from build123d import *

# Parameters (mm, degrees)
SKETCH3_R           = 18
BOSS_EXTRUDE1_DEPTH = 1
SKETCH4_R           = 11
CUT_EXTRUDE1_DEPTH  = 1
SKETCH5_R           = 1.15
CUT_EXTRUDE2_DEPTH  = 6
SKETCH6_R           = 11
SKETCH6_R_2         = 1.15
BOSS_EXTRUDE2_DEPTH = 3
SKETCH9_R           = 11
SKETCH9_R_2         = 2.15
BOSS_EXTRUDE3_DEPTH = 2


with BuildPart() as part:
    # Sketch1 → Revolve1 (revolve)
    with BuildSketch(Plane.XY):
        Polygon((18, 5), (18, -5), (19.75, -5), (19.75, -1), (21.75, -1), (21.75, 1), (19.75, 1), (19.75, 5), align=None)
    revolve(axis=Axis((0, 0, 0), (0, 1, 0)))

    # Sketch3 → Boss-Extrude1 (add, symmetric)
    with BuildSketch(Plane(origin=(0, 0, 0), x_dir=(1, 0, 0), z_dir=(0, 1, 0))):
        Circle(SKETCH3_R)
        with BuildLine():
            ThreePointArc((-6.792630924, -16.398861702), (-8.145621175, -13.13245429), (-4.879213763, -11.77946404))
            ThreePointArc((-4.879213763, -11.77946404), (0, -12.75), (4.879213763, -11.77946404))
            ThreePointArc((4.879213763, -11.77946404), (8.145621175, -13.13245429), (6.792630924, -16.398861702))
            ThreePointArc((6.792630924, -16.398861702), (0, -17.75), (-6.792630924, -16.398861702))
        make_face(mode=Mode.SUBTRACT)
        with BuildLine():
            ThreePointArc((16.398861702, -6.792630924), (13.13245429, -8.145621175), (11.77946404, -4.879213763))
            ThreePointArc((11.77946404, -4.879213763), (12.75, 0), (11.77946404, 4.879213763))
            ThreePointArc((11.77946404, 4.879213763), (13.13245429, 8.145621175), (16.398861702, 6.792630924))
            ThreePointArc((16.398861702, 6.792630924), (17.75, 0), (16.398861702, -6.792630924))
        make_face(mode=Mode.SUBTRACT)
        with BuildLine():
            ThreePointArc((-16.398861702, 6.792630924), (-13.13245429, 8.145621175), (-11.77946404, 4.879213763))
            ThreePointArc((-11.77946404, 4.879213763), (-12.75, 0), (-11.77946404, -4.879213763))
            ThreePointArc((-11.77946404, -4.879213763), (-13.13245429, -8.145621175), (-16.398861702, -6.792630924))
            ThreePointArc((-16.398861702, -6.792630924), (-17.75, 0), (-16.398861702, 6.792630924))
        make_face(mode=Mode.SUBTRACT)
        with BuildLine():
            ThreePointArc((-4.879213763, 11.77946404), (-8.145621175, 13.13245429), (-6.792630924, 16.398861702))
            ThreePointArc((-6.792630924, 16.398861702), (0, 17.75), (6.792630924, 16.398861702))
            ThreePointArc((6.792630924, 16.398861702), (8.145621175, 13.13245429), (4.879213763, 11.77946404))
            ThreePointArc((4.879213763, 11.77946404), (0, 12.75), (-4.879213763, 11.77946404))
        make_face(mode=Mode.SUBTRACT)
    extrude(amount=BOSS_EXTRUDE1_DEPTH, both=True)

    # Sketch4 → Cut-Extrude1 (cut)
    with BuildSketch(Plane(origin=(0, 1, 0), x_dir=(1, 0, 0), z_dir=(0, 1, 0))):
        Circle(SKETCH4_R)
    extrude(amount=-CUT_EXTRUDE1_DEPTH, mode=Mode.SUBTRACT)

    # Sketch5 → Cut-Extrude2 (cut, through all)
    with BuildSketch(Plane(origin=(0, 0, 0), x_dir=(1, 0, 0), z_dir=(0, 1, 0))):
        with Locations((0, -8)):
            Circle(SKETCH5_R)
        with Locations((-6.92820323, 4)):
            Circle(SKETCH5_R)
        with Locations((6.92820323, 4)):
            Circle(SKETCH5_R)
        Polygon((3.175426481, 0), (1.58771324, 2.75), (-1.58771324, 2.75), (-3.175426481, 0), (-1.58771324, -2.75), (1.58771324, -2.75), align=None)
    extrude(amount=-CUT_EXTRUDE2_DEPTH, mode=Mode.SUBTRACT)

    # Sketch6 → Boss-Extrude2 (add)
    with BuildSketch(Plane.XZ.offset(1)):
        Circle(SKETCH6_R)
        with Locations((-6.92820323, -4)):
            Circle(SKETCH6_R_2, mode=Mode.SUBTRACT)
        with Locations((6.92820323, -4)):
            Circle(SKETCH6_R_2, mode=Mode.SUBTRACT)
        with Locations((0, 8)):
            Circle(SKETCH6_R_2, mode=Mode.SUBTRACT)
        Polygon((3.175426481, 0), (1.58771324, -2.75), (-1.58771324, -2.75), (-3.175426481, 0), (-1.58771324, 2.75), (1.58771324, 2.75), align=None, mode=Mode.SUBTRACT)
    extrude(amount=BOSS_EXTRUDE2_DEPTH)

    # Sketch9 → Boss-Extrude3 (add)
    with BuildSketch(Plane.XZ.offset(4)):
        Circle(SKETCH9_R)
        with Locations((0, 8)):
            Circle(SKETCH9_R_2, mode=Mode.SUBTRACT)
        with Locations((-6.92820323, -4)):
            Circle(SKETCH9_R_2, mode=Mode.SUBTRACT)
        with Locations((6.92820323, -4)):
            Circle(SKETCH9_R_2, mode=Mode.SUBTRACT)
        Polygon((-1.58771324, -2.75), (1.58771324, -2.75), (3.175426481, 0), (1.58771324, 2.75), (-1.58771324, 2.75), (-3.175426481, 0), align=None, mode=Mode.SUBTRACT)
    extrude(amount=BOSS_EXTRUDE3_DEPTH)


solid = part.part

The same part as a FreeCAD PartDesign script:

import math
import FreeCAD as App
import Part
import Sketcher
Q = App.Units.Quantity

doc = App.newDocument("Part")
params = doc.addObject("Spreadsheet::Sheet", "Params")
for row, (alias, value) in enumerate([
    ("sketch1_width", "2 mm"),
    ("sketch1_height", "10 mm"),
    ("sketch1_width2", "1.75 mm"),
    ("revolution_angle", "360 deg"),
    ("sketch2_diameter", "36 mm"),
    ("sketch2_radius", "2.5 mm"),
    ("sketch2_radius2", "17.75 mm"),
    ("pad1_length", "2 mm"),
    ("sketch3_diameter", "22 mm"),
    ("pocket1_length", "1 mm"),
    ("sketch4_diameter", "2.3 mm"),
    ("sketch5_diameter", "22 mm"),
    ("sketch5_diameter2", "2.3 mm"),
    ("pad2_length", "3 mm"),
    ("sketch6_diameter", "22 mm"),
    ("sketch6_diameter2", "4.3 mm"),
    ("pad3_length", "2 mm"),
], start=1):
    params.set(f"A{row}", alias)
    params.set(f"B{row}", "=" + value)
    params.setAlias(f"B{row}", alias)

body = doc.addObject("PartDesign::Body", "Body")

sketch1 = doc.addObject("Sketcher::SketchObject", "Sketch")
body.addObject(sketch1)
sketch1.AttachmentSupport = (doc.XY_Plane, [""])
sketch1.MapMode = "FlatFace"
sketch1.addGeometry([
    Part.LineSegment(App.Vector(18, 5, 0), App.Vector(18, -5, 0)),
    Part.LineSegment(App.Vector(18, -5, 0), App.Vector(19.8, -5, 0)),
    Part.LineSegment(App.Vector(19.8, -5, 0), App.Vector(19.8, -1, 0)),
    Part.LineSegment(App.Vector(19.8, -1, 0), App.Vector(21.8, -1, 0)),
    Part.LineSegment(App.Vector(21.8, -1, 0), App.Vector(21.8, 1, 0)),
    Part.LineSegment(App.Vector(21.8, 1, 0), App.Vector(19.8, 1, 0)),
    Part.LineSegment(App.Vector(19.8, 1, 0), App.Vector(19.8, 5, 0)),
    Part.LineSegment(App.Vector(19.8, 5, 0), App.Vector(18, 5, 0)),
], False)
sketch1.addConstraint([
    Sketcher.Constraint("Coincident", 0, 2, 1, 1),
    Sketcher.Constraint("Coincident", 1, 2, 2, 1),
    Sketcher.Constraint("Coincident", 2, 2, 3, 1),
    Sketcher.Constraint("Coincident", 3, 2, 4, 1),
    Sketcher.Constraint("Coincident", 4, 2, 5, 1),
    Sketcher.Constraint("Coincident", 5, 2, 6, 1),
    Sketcher.Constraint("Coincident", 6, 2, 7, 1),
    Sketcher.Constraint("Coincident", 7, 2, 0, 1),
    Sketcher.Constraint("Vertical", 0),
    Sketcher.Constraint("Horizontal", 1),
    Sketcher.Constraint("Vertical", 2),
    Sketcher.Constraint("Horizontal", 3),
    Sketcher.Constraint("Vertical", 4),
    Sketcher.Constraint("Horizontal", 5),
    Sketcher.Constraint("Vertical", 6),
    Sketcher.Constraint("Horizontal", 7),
    Sketcher.Constraint("Symmetric", 2, 2, 5, 2, -1),
    Sketcher.Constraint("Equal", 5, 4),
    Sketcher.Constraint("Equal", 2, 6),
    Sketcher.Constraint("DistanceX", 3, 1, 3, 2, 2.0),
    Sketcher.Constraint("DistanceY", 0, 2, 0, 1, 10.0),
    Sketcher.Constraint("DistanceX", -1, 1, 0, 2, 18.0),
    Sketcher.Constraint("DistanceX", 1, 1, 1, 2, 1.75),
])
sketch1.setExpression("Constraints[19]", "Params.sketch1_width")
sketch1.setExpression("Constraints[20]", "Params.sketch1_height")
sketch1.setExpression("Constraints[22]", "Params.sketch1_width2")
revolution = doc.addObject("PartDesign::Revolution", "Revolution")
body.addObject(revolution)
revolution.Profile = sketch1
revolution.ReferenceAxis = (sketch1, ["V_Axis"])
revolution.setExpression("Angle", "Params.revolution_angle")

sketch2 = doc.addObject("Sketcher::SketchObject", "Sketch001")
body.addObject(sketch2)
sketch2.AttachmentSupport = (doc.XZ_Plane, [""])
sketch2.MapMode = "FlatFace"
sketch2.addGeometry([
    Part.Circle(App.Vector(0, 0, 0), App.Vector(0, 0, 1), 18),
    Part.ArcOfCircle(Part.Circle(App.Vector(0, 0, 0), App.Vector(0, 0, 1), 17.7), math.radians(67), math.radians(113)),
    Part.ArcOfCircle(Part.Circle(App.Vector(-5.8, 14.1, 0), App.Vector(0, 0, 1), 2.5), math.radians(112), math.radians(293)),
    Part.ArcOfCircle(Part.Circle(App.Vector(0, 0, 0), App.Vector(0, 0, 1), 12.8), math.radians(68), math.radians(112)),
    Part.ArcOfCircle(Part.Circle(App.Vector(5.8, 14.1, 0), App.Vector(0, 0, 1), 2.5), math.radians(-113), math.radians(68)),
    Part.ArcOfCircle(Part.Circle(App.Vector(0, 0, 0), App.Vector(0, 0, 1), 17.7), math.radians(157), math.radians(203)),
    Part.ArcOfCircle(Part.Circle(App.Vector(-14.1, -5.8, 0), App.Vector(0, 0, 1), 2.5), math.radians(-158), math.radians(23)),
    Part.ArcOfCircle(Part.Circle(App.Vector(0, 0, 0), App.Vector(0, 0, 1), 12.8), math.radians(158), math.radians(202)),
    Part.ArcOfCircle(Part.Circle(App.Vector(-14.1, 5.8, 0), App.Vector(0, 0, 1), 2.5), math.radians(-23), math.radians(158)),
    Part.ArcOfCircle(Part.Circle(App.Vector(0, 0, 0), App.Vector(0, 0, 1), 17.7), math.radians(-23), math.radians(23)),
    Part.ArcOfCircle(Part.Circle(App.Vector(14.1, 5.8, 0), App.Vector(0, 0, 1), 2.5), math.radians(22), math.radians(203)),
    Part.ArcOfCircle(Part.Circle(App.Vector(0, 0, 0), App.Vector(0, 0, 1), 12.8), math.radians(-22), math.radians(22)),
    Part.ArcOfCircle(Part.Circle(App.Vector(14.1, -5.8, 0), App.Vector(0, 0, 1), 2.5), math.radians(157), math.radians(338)),
    Part.ArcOfCircle(Part.Circle(App.Vector(0, 0, 0), App.Vector(0, 0, 1), 12.8), math.radians(-112), math.radians(-68)),
    Part.ArcOfCircle(Part.Circle(App.Vector(-5.8, -14.1, 0), App.Vector(0, 0, 1), 2.5), math.radians(67), math.radians(248)),
    Part.ArcOfCircle(Part.Circle(App.Vector(0, 0, 0), App.Vector(0, 0, 1), 17.7), math.radians(-113), math.radians(-67)),
    Part.ArcOfCircle(Part.Circle(App.Vector(5.8, -14.1, 0), App.Vector(0, 0, 1), 2.5), math.radians(-68), math.radians(113)),
], False)
sketch2.addConstraint([
    Sketcher.Constraint("Tangent", 1, 2, 2, 1),
    Sketcher.Constraint("Tangent", 2, 2, 3, 2),
    Sketcher.Constraint("Tangent", 3, 1, 4, 1),
    Sketcher.Constraint("Tangent", 4, 2, 1, 1),
    Sketcher.Constraint("Tangent", 5, 2, 6, 1),
    Sketcher.Constraint("Tangent", 6, 2, 7, 2),
    Sketcher.Constraint("Tangent", 7, 1, 8, 1),
    Sketcher.Constraint("Tangent", 8, 2, 5, 1),
    Sketcher.Constraint("Tangent", 9, 2, 10, 1),
    Sketcher.Constraint("Tangent", 10, 2, 11, 2),
    Sketcher.Constraint("Tangent", 11, 1, 12, 1),
    Sketcher.Constraint("Tangent", 12, 2, 9, 1),
    Sketcher.Constraint("Tangent", 13, 1, 14, 1),
    Sketcher.Constraint("Tangent", 14, 2, 15, 1),
    Sketcher.Constraint("Tangent", 15, 2, 16, 1),
    Sketcher.Constraint("Tangent", 16, 2, 13, 2),
    Sketcher.Constraint("Coincident", 0, 3, -1, 1),
    Sketcher.Constraint("Coincident", 1, 3, -1, 1),
    Sketcher.Constraint("Coincident", 3, 3, -1, 1),
    Sketcher.Constraint("Coincident", 5, 3, -1, 1),
    Sketcher.Constraint("Coincident", 7, 3, -1, 1),
    Sketcher.Constraint("Coincident", 9, 3, -1, 1),
    Sketcher.Constraint("Coincident", 11, 3, -1, 1),
    Sketcher.Constraint("Coincident", 13, 3, -1, 1),
    Sketcher.Constraint("Coincident", 15, 3, -1, 1),
    Sketcher.Constraint("Equal", 1, 5),
    Sketcher.Constraint("Equal", 4, 6),
    Sketcher.Constraint("Equal", 5, 9),
    Sketcher.Constraint("Equal", 8, 10),
    Sketcher.Constraint("Equal", 11, 13),
    Sketcher.Constraint("Equal", 12, 14),
    Sketcher.Constraint("Horizontal", 2, 3, 4, 3),
    Sketcher.Constraint("Horizontal", 8, 3, 10, 3),
    Sketcher.Constraint("Horizontal", 6, 3, 12, 3),
    Sketcher.Constraint("Horizontal", 14, 3, 16, 3),
    Sketcher.Constraint("Vertical", 6, 3, 8, 3),
    Sketcher.Constraint("Vertical", 2, 3, 14, 3),
    Sketcher.Constraint("Diameter", 0, 36.0),
    Sketcher.Constraint("Radius", 2, 2.5),
    Sketcher.Constraint("Radius", 1, 17.75),
    Sketcher.Constraint("DistanceY", 2, 3, 1, 2, 2.309699),
    Sketcher.Constraint("DistanceX", 5, 2, 6, 3, 2.309699),
])
sketch2.setExpression("Constraints[37]", "Params.sketch2_diameter")
sketch2.setExpression("Constraints[38]", "Params.sketch2_radius")
sketch2.setExpression("Constraints[39]", "Params.sketch2_radius2")
pad1 = doc.addObject("PartDesign::Pad", "Pad")
body.addObject(pad1)
pad1.Profile = sketch2
pad1.setExpression("Length", "Params.pad1_length")
pad1.Midplane = True

sketch3 = doc.addObject("Sketcher::SketchObject", "Sketch002")
body.addObject(sketch3)
sketch3.AttachmentSupport = (doc.XZ_Plane, [""])
sketch3.MapMode = "FlatFace"
sketch3.AttachmentOffset = App.Placement(App.Vector(0, 0, -1), App.Rotation())
sketch3.addGeometry(Part.Circle(App.Vector(0, 0, 0), App.Vector(0, 0, 1), 11), False)
sketch3.addConstraint([
    Sketcher.Constraint("Coincident", 0, 3, -1, 1),
    Sketcher.Constraint("Diameter", 0, 22.0),
])
sketch3.setExpression("Constraints[1]", "Params.sketch3_diameter")
pocket1 = doc.addObject("PartDesign::Pocket", "Pocket")
body.addObject(pocket1)
pocket1.Profile = sketch3
pocket1.setExpression("Length", "Params.pocket1_length")
pocket1.Reversed = True

sketch4 = doc.addObject("Sketcher::SketchObject", "Sketch003")
body.addObject(sketch4)
sketch4.AttachmentSupport = (doc.XZ_Plane, [""])
sketch4.MapMode = "FlatFace"
sketch4.addGeometry([
    Part.Circle(App.Vector(0, 8, 0), App.Vector(0, 0, 1), 1.1),
    Part.Circle(App.Vector(-6.9, -4, 0), App.Vector(0, 0, 1), 1.1),
    Part.Circle(App.Vector(6.9, -4, 0), App.Vector(0, 0, 1), 1.1),
    Part.LineSegment(App.Vector(3.2, 0, 0), App.Vector(1.6, -2.8, 0)),
    Part.LineSegment(App.Vector(1.6, -2.8, 0), App.Vector(-1.6, -2.8, 0)),
    Part.LineSegment(App.Vector(-1.6, -2.8, 0), App.Vector(-3.2, 0, 0)),
    Part.LineSegment(App.Vector(-3.2, 0, 0), App.Vector(-1.6, 2.8, 0)),
    Part.LineSegment(App.Vector(-1.6, 2.8, 0), App.Vector(1.6, 2.8, 0)),
    Part.LineSegment(App.Vector(1.6, 2.8, 0), App.Vector(3.2, 0, 0)),
], False)
sketch4.addConstraint([
    Sketcher.Constraint("Coincident", 3, 2, 4, 1),
    Sketcher.Constraint("Coincident", 4, 2, 5, 1),
    Sketcher.Constraint("Coincident", 5, 2, 6, 1),
    Sketcher.Constraint("Coincident", 6, 2, 7, 1),
    Sketcher.Constraint("Coincident", 7, 2, 8, 1),
    Sketcher.Constraint("Coincident", 8, 2, 3, 1),
    Sketcher.Constraint("Horizontal", 4),
    Sketcher.Constraint("Horizontal", 7),
    Sketcher.Constraint("Equal", 0, 1),
    Sketcher.Constraint("Equal", 1, 2),
    Sketcher.Constraint("Symmetric", 3, 2, 6, 2, -1, 1),
    Sketcher.Constraint("Symmetric", 5, 2, 8, 2, -1, 1),
    Sketcher.Constraint("Symmetric", 1, 3, 2, 3, -2),
    Sketcher.Constraint("PointOnObject", 0, 3, -2),
    Sketcher.Constraint("PointOnObject", 5, 2, -1),
    Sketcher.Constraint("Parallel", 5, 8),
    Sketcher.Constraint("Vertical", 4, 2, 6, 2),
    Sketcher.Constraint("Diameter", 0, 2.3),
    Sketcher.Constraint("Angle", 3, Q("-120 deg")),
    Sketcher.Constraint("DistanceY", -1, 1, 0, 3, 8.0),
    Sketcher.Constraint("DistanceY", 1, 3, -1, 1, 4.0),
    Sketcher.Constraint("DistanceY", 4, 2, 6, 2, 5.5),
    Sketcher.Constraint("DistanceX", 4, 2, 4, 1, 3.175426),
    Sketcher.Constraint("DistanceX", 3, 2, 2, 3, 5.34049),
])
sketch4.setExpression("Constraints[17]", "Params.sketch4_diameter")
pocket2 = doc.addObject("PartDesign::Pocket", "Pocket001")
body.addObject(pocket2)
pocket2.Profile = sketch4
pocket2.Type = "ThroughAll"
pocket2.Reversed = True

sketch5 = doc.addObject("Sketcher::SketchObject", "Sketch004")
body.addObject(sketch5)
sketch5.AttachmentSupport = (doc.XZ_Plane, [""])
sketch5.MapMode = "FlatFace"
sketch5.AttachmentOffset = App.Placement(App.Vector(0, 0, 1), App.Rotation())
sketch5.addGeometry([
    Part.Circle(App.Vector(0, 0, 0), App.Vector(0, 0, 1), 11),
    Part.Circle(App.Vector(-6.9, -4, 0), App.Vector(0, 0, 1), 1.1),
    Part.Circle(App.Vector(6.9, -4, 0), App.Vector(0, 0, 1), 1.1),
    Part.LineSegment(App.Vector(1.6, 2.8, 0), App.Vector(3.2, 0, 0)),
    Part.LineSegment(App.Vector(3.2, 0, 0), App.Vector(1.6, -2.8, 0)),
    Part.LineSegment(App.Vector(1.6, -2.8, 0), App.Vector(-1.6, -2.8, 0)),
    Part.LineSegment(App.Vector(-1.6, -2.8, 0), App.Vector(-3.2, 0, 0)),
    Part.LineSegment(App.Vector(-3.2, 0, 0), App.Vector(-1.6, 2.8, 0)),
    Part.LineSegment(App.Vector(-1.6, 2.8, 0), App.Vector(1.6, 2.8, 0)),
    Part.Circle(App.Vector(0, 8, 0), App.Vector(0, 0, 1), 1.1),
], False)
sketch5.addConstraint([
    Sketcher.Constraint("Coincident", 3, 2, 4, 1),
    Sketcher.Constraint("Coincident", 4, 2, 5, 1),
    Sketcher.Constraint("Coincident", 5, 2, 6, 1),
    Sketcher.Constraint("Coincident", 6, 2, 7, 1),
    Sketcher.Constraint("Coincident", 7, 2, 8, 1),
    Sketcher.Constraint("Coincident", 8, 2, 3, 1),
    Sketcher.Constraint("Horizontal", 5),
    Sketcher.Constraint("Horizontal", 8),
    Sketcher.Constraint("Coincident", 0, 3, -1, 1),
    Sketcher.Constraint("Equal", 1, 2),
    Sketcher.Constraint("Equal", 2, 9),
    Sketcher.Constraint("Symmetric", 3, 2, 6, 2, -1, 1),
    Sketcher.Constraint("Symmetric", 4, 2, 7, 2, -1, 1),
    Sketcher.Constraint("Symmetric", 1, 3, 2, 3, -2),
    Sketcher.Constraint("PointOnObject", 9, 3, -2),
    Sketcher.Constraint("PointOnObject", 3, 2, -1),
    Sketcher.Constraint("Parallel", 3, 6),
    Sketcher.Constraint("Vertical", 5, 2, 7, 2),
    Sketcher.Constraint("Diameter", 0, 22.0),
    Sketcher.Constraint("Diameter", 1, 2.3),
    Sketcher.Constraint("Angle", 3, Q("-60 deg")),
    Sketcher.Constraint("DistanceY", 1, 3, -1, 1, 4.0),
    Sketcher.Constraint("DistanceY", -1, 1, 9, 3, 8.0),
    Sketcher.Constraint("DistanceY", 5, 2, 7, 2, 5.5),
    Sketcher.Constraint("DistanceX", 5, 2, 5, 1, 3.175426),
    Sketcher.Constraint("DistanceX", 1, 3, 3, 2, 10.10363),
])
sketch5.setExpression("Constraints[18]", "Params.sketch5_diameter")
sketch5.setExpression("Constraints[19]", "Params.sketch5_diameter2")
pad2 = doc.addObject("PartDesign::Pad", "Pad001")
body.addObject(pad2)
pad2.Profile = sketch5
pad2.setExpression("Length", "Params.pad2_length")

sketch6 = doc.addObject("Sketcher::SketchObject", "Sketch005")
body.addObject(sketch6)
sketch6.AttachmentSupport = (doc.XZ_Plane, [""])
sketch6.MapMode = "FlatFace"
sketch6.AttachmentOffset = App.Placement(App.Vector(0, 0, 4), App.Rotation())
sketch6.addGeometry([
    Part.Circle(App.Vector(0, 0, 0), App.Vector(0, 0, 1), 11),
    Part.Circle(App.Vector(-6.9, -4, 0), App.Vector(0, 0, 1), 2.1),
    Part.Circle(App.Vector(6.9, -4, 0), App.Vector(0, 0, 1), 2.1),
    Part.LineSegment(App.Vector(1.6, -2.8, 0), App.Vector(-1.6, -2.8, 0)),
    Part.LineSegment(App.Vector(-1.6, -2.8, 0), App.Vector(-3.2, 0, 0)),
    Part.LineSegment(App.Vector(-3.2, 0, 0), App.Vector(-1.6, 2.8, 0)),
    Part.LineSegment(App.Vector(-1.6, 2.8, 0), App.Vector(1.6, 2.8, 0)),
    Part.LineSegment(App.Vector(1.6, 2.8, 0), App.Vector(3.2, 0, 0)),
    Part.LineSegment(App.Vector(3.2, 0, 0), App.Vector(1.6, -2.8, 0)),
    Part.Circle(App.Vector(0, 8, 0), App.Vector(0, 0, 1), 2.1),
], False)
sketch6.addConstraint([
    Sketcher.Constraint("Coincident", 3, 2, 4, 1),
    Sketcher.Constraint("Coincident", 4, 2, 5, 1),
    Sketcher.Constraint("Coincident", 5, 2, 6, 1),
    Sketcher.Constraint("Coincident", 6, 2, 7, 1),
    Sketcher.Constraint("Coincident", 7, 2, 8, 1),
    Sketcher.Constraint("Coincident", 8, 2, 3, 1),
    Sketcher.Constraint("Horizontal", 3),
    Sketcher.Constraint("Horizontal", 6),
    Sketcher.Constraint("Coincident", 0, 3, -1, 1),
    Sketcher.Constraint("Equal", 1, 2),
    Sketcher.Constraint("Equal", 2, 9),
    Sketcher.Constraint("Symmetric", 3, 2, 6, 2, -1, 1),
    Sketcher.Constraint("Symmetric", 4, 2, 7, 2, -1, 1),
    Sketcher.Constraint("Symmetric", 1, 3, 2, 3, -2),
    Sketcher.Constraint("PointOnObject", 9, 3, -2),
    Sketcher.Constraint("PointOnObject", 4, 2, -1),
    Sketcher.Constraint("Parallel", 5, 8),
    Sketcher.Constraint("Vertical", 3, 2, 5, 2),
    Sketcher.Constraint("Diameter", 0, 22.0),
    Sketcher.Constraint("Diameter", 1, 4.3),
    Sketcher.Constraint("Angle", 4, Q("120 deg")),
    Sketcher.Constraint("DistanceY", 1, 3, -1, 1, 4.0),
    Sketcher.Constraint("DistanceY", -1, 1, 9, 3, 8.0),
    Sketcher.Constraint("DistanceY", 3, 2, 5, 2, 5.5),
    Sketcher.Constraint("DistanceX", 3, 2, 3, 1, 3.175426),
    Sketcher.Constraint("DistanceX", 1, 3, 3, 2, 5.34049),
])
sketch6.setExpression("Constraints[18]", "Params.sketch6_diameter")
sketch6.setExpression("Constraints[19]", "Params.sketch6_diameter2")
pad3 = doc.addObject("PartDesign::Pad", "Pad002")
body.addObject(pad3)
pad3.Profile = sketch6
pad3.setExpression("Length", "Params.pad3_length")

doc.recompute()
